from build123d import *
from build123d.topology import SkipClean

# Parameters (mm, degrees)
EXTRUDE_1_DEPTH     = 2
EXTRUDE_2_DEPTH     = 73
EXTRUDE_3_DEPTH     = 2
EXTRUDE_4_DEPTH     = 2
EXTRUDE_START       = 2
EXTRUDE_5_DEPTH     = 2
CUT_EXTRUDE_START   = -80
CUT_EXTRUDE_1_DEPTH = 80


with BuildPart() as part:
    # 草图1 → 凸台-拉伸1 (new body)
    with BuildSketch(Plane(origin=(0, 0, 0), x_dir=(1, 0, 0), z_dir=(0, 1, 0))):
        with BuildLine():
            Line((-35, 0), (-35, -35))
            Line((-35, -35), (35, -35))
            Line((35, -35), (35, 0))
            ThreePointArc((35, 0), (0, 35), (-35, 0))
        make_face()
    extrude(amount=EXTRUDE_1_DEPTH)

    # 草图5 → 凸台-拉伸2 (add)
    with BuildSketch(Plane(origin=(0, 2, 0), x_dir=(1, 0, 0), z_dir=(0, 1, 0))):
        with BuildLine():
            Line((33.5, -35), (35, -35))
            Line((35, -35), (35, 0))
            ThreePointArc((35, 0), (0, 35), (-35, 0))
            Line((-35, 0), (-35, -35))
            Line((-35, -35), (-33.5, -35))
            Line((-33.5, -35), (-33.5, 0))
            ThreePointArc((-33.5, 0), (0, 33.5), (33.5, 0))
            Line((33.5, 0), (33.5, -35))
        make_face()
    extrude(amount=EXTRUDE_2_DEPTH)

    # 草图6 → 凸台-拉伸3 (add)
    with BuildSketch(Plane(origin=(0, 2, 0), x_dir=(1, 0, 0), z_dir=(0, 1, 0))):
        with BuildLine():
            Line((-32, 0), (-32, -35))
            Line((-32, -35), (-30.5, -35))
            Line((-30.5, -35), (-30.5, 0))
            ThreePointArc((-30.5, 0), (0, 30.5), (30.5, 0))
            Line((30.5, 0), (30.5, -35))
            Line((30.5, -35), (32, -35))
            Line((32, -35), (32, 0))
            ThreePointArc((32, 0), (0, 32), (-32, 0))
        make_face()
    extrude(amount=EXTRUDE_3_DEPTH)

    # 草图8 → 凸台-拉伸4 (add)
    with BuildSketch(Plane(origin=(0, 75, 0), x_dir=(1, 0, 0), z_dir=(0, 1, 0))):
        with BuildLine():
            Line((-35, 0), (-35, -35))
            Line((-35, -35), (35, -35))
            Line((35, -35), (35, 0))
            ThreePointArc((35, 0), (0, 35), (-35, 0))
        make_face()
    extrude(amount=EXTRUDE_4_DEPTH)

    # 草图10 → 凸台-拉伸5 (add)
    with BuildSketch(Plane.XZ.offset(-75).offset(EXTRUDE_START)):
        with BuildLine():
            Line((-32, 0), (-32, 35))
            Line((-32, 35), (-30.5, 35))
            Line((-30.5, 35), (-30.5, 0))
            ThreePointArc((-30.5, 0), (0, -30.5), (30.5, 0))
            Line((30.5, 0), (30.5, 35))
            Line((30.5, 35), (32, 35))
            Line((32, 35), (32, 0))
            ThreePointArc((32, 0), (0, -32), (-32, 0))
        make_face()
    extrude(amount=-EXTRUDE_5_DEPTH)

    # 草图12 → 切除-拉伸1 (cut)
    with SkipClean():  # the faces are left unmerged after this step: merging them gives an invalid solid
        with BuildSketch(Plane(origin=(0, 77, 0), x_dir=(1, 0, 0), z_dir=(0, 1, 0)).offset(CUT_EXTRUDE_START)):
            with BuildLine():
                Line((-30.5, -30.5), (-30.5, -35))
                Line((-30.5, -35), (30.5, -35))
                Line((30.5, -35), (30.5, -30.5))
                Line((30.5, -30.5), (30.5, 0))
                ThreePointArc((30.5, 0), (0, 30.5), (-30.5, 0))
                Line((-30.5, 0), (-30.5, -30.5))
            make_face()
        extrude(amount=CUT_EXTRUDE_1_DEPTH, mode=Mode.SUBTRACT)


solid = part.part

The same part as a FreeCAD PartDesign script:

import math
import FreeCAD as App
import Part
import Sketcher

V = App.Vector

doc = App.newDocument("Part")
params = doc.addObject("Spreadsheet::Sheet", "Params")
for row, (alias, value) in enumerate([
    ("sketch1_radius", "35 mm"),
    ("sketch1_height", "35 mm"),
    ("pad1_length", "2 mm"),
    ("sketch2_radius", "35 mm"),
    ("sketch2_radius2", "33.5 mm"),
    ("sketch2_height", "35 mm"),
    ("pad2_length", "73 mm"),
    ("sketch3_radius", "32 mm"),
    ("sketch3_radius2", "30.5 mm"),
    ("sketch3_height", "35 mm"),
    ("pad3_length", "2 mm"),
    ("sketch4_radius", "35 mm"),
    ("sketch4_height", "35 mm"),
    ("pad4_length", "2 mm"),
    ("sketch5_radius", "32 mm"),
    ("sketch5_radius2", "30.5 mm"),
    ("sketch5_height", "35 mm"),
    ("pad5_length", "2 mm"),
    ("sketch6_radius", "30.5 mm"),
    ("sketch6_height", "35 mm"),
    ("pocket1_length", "80 mm"),
], start=1):
    params.set(f"A{row}", alias)
    params.set(f"B{row}", "=" + value)
    params.setAlias(f"B{row}", alias)

body = doc.addObject("PartDesign::Body", "Body")

# Sketch on XZ plane
sketch1 = doc.addObject("Sketcher::SketchObject", "Sketch")
body.addObject(sketch1)
sketch1.AttachmentSupport = (doc.XZ_Plane, [""])
sketch1.MapMode = "FlatFace"
sketch1.addGeometry([
    Part.LineSegment(V(-35, 0, 0), V(-35, 35, 0)),
    Part.LineSegment(V(-35, 35, 0), V(35, 35, 0)),
    Part.LineSegment(V(35, 35, 0), V(35, 0, 0)),
    Part.ArcOfCircle(Part.Circle(V(0, 0, 0), V(0, 0, 1), 35), math.radians(180), math.radians(360)),
], False)
sketch1.addConstraint([
    Sketcher.Constraint("Coincident", 0, 2, 1, 1),
    Sketcher.Constraint("Coincident", 1, 2, 2, 1),
    Sketcher.Constraint("Tangent", 2, 2, 3, 2),
    Sketcher.Constraint("Tangent", 3, 1, 0, 1),
    Sketcher.Constraint("Vertical", 0),
    Sketcher.Constraint("Horizontal", 1),
    Sketcher.Constraint("Vertical", 2),
    Sketcher.Constraint("Coincident", 3, 3, -1, 1),
    Sketcher.Constraint("Radius", 3, 35.0),
    Sketcher.Constraint("DistanceY", 0, 1, 0, 2, 35.0),
])
sketch1.setExpression("Constraints[8]", "Params.sketch1_radius")
sketch1.setExpression("Constraints[9]", "Params.sketch1_height")
pad1 = doc.addObject("PartDesign::Pad", "Pad")
body.addObject(pad1)
pad1.Profile = sketch1
pad1.setExpression("Length", "Params.pad1_length")
pad1.Reversed = True

# Sketch on XZ plane
sketch2 = doc.addObject("Sketcher::SketchObject", "Sketch001")
body.addObject(sketch2)
sketch2.AttachmentSupport = (doc.XZ_Plane, [""])
sketch2.MapMode = "FlatFace"
sketch2.AttachmentOffset = App.Placement(V(0, 0, -2), App.Rotation())
sketch2.addGeometry([
    Part.LineSegment(V(33.5, 35, 0), V(35, 35, 0)),  # 0
    Part.LineSegment(V(35, 35, 0), V(35, 0, 0)),  # 1
    Part.ArcOfCircle(Part.Circle(V(0, 0, 0), V(0, 0, 1), 35), math.radians(180), math.radians(360)),  # 2
    Part.LineSegment(V(-35, 0, 0), V(-35, 35, 0)),  # 3
    Part.LineSegment(V(-35, 35, 0), V(-33.5, 35, 0)),  # 4
    Part.LineSegment(V(-33.5, 35, 0), V(-33.5, 0, 0)),  # 5
    Part.ArcOfCircle(Part.Circle(V(0, 0, 0), V(0, 0, 1), 33.5), math.radians(180), math.radians(360)),  # 6
    Part.LineSegment(V(33.5, 0, 0), V(33.5, 35, 0)),  # 7
], False)
sketch2.addConstraint([
    Sketcher.Constraint("Coincident", 0, 2, 1, 1),
    Sketcher.Constraint("Tangent", 1, 2, 2, 2),
    Sketcher.Constraint("Tangent", 2, 1, 3, 1),
    Sketcher.Constraint("Coincident", 3, 2, 4, 1),
    Sketcher.Constraint("Coincident", 4, 2, 5, 1),
    Sketcher.Constraint("Tangent", 5, 2, 6, 1),
    Sketcher.Constraint("Tangent", 6, 2, 7, 1),
    Sketcher.Constraint("Coincident", 7, 2, 0, 1),
    Sketcher.Constraint("Horizontal", 0),
    Sketcher.Constraint("Vertical", 1),
    Sketcher.Constraint("Vertical", 3),
    Sketcher.Constraint("Horizontal", 4),
    Sketcher.Constraint("Vertical", 5),
    Sketcher.Constraint("Vertical", 7),
    Sketcher.Constraint("Coincident", 2, 3, -1, 1),
    Sketcher.Constraint("Coincident", 6, 3, -1, 1),
    Sketcher.Constraint("Horizontal", 0, 2, 3, 2),
    Sketcher.Constraint("Radius", 2, 35.0),
    Sketcher.Constraint("Radius", 6, 33.5),
    Sketcher.Constraint("DistanceY", 1, 2, 1, 1, 35.0),
])
sketch2.setExpression("Constraints[17]", "Params.sketch2_radius")
sketch2.setExpression("Constraints[18]", "Params.sketch2_radius2")
sketch2.setExpression("Constraints[19]", "Params.sketch2_height")
pad2 = doc.addObject("PartDesign::Pad", "Pad001")
body.addObject(pad2)
pad2.Profile = sketch2
pad2.setExpression("Length", "Params.pad2_length")
pad2.Reversed = True

# Sketch on XZ plane
sketch3 = doc.addObject("Sketcher::SketchObject", "Sketch002")
body.addObject(sketch3)
sketch3.AttachmentSupport = (doc.XZ_Plane, [""])
sketch3.MapMode = "FlatFace"
sketch3.AttachmentOffset = App.Placement(V(0, 0, -2), App.Rotation())
sketch3.addGeometry([
    Part.LineSegment(V(-32, 0, 0), V(-32, 35, 0)),  # 0
    Part.LineSegment(V(-32, 35, 0), V(-30.5, 35, 0)),  # 1
    Part.LineSegment(V(-30.5, 35, 0), V(-30.5, 0, 0)),  # 2
    Part.ArcOfCircle(Part.Circle(V(0, 0, 0), V(0, 0, 1), 30.5), math.radians(180), math.radians(360)),  # 3
    Part.LineSegment(V(30.5, 0, 0), V(30.5, 35, 0)),  # 4
    Part.LineSegment(V(30.5, 35, 0), V(32, 35, 0)),  # 5
    Part.LineSegment(V(32, 35, 0), V(32, 0, 0)),  # 6
    Part.ArcOfCircle(Part.Circle(V(0, 0, 0), V(0, 0, 1), 32), math.radians(180), math.radians(360)),  # 7
], False)
sketch3.addConstraint([
    Sketcher.Constraint("Coincident", 0, 2, 1, 1),
    Sketcher.Constraint("Coincident", 1, 2, 2, 1),
    Sketcher.Constraint("Tangent", 2, 2, 3, 1),
    Sketcher.Constraint("Tangent", 3, 2, 4, 1),
    Sketcher.Constraint("Coincident", 4, 2, 5, 1),
    Sketcher.Constraint("Coincident", 5, 2, 6, 1),
    Sketcher.Constraint("Tangent", 6, 2, 7, 2),
    Sketcher.Constraint("Tangent", 7, 1, 0, 1),
    Sketcher.Constraint("Vertical", 0),
    Sketcher.Constraint("Horizontal", 1),
    Sketcher.Constraint("Vertical", 2),
    Sketcher.Constraint("Vertical", 4),
    Sketcher.Constraint("Horizontal", 5),
    Sketcher.Constraint("Vertical", 6),
    Sketcher.Constraint("Coincident", 3, 3, -1, 1),
    Sketcher.Constraint("Coincident", 7, 3, -1, 1),
    Sketcher.Constraint("Horizontal", 1, 2, 4, 2),
    Sketcher.Constraint("Radius", 7, 32.0),
    Sketcher.Constraint("Radius", 3, 30.5),
    Sketcher.Constraint("DistanceY", 0, 1, 0, 2, 35.0),
])
sketch3.setExpression("Constraints[17]", "Params.sketch3_radius")
sketch3.setExpression("Constraints[18]", "Params.sketch3_radius2")
sketch3.setExpression("Constraints[19]", "Params.sketch3_height")
pad3 = doc.addObject("PartDesign::Pad", "Pad002")
body.addObject(pad3)
pad3.Profile = sketch3
pad3.setExpression("Length", "Params.pad3_length")
pad3.Reversed = True

# Sketch on XZ plane
sketch4 = doc.addObject("Sketcher::SketchObject", "Sketch003")
body.addObject(sketch4)
sketch4.AttachmentSupport = (doc.XZ_Plane, [""])
sketch4.MapMode = "FlatFace"
sketch4.AttachmentOffset = App.Placement(V(0, 0, -75), App.Rotation())
sketch4.addGeometry([
    Part.LineSegment(V(-35, 0, 0), V(-35, 35, 0)),
    Part.LineSegment(V(-35, 35, 0), V(35, 35, 0)),
    Part.LineSegment(V(35, 35, 0), V(35, 0, 0)),
    Part.ArcOfCircle(Part.Circle(V(0, 0, 0), V(0, 0, 1), 35), math.radians(180), math.radians(360)),
], False)
sketch4.addConstraint([
    Sketcher.Constraint("Coincident", 0, 2, 1, 1),
    Sketcher.Constraint("Coincident", 1, 2, 2, 1),
    Sketcher.Constraint("Tangent", 2, 2, 3, 2),
    Sketcher.Constraint("Tangent", 3, 1, 0, 1),
    Sketcher.Constraint("Vertical", 0),
    Sketcher.Constraint("Horizontal", 1),
    Sketcher.Constraint("Vertical", 2),
    Sketcher.Constraint("Coincident", 3, 3, -1, 1),
    Sketcher.Constraint("Radius", 3, 35.0),
    Sketcher.Constraint("DistanceY", 0, 1, 0, 2, 35.0),
])
sketch4.setExpression("Constraints[8]", "Params.sketch4_radius")
sketch4.setExpression("Constraints[9]", "Params.sketch4_height")
pad4 = doc.addObject("PartDesign::Pad", "Pad003")
body.addObject(pad4)
pad4.Profile = sketch4
pad4.setExpression("Length", "Params.pad4_length")
pad4.Reversed = True

# Sketch on XZ plane
sketch5 = doc.addObject("Sketcher::SketchObject", "Sketch004")
body.addObject(sketch5)
sketch5.AttachmentSupport = (doc.XZ_Plane, [""])
sketch5.MapMode = "FlatFace"
sketch5.AttachmentOffset = App.Placement(V(0, 0, -73), App.Rotation())
sketch5.addGeometry([
    Part.LineSegment(V(-32, 35, 0), V(-32, 0, 0)),  # 0
    Part.ArcOfCircle(Part.Circle(V(0, 0, 0), V(0, 0, 1), 32), math.radians(180), math.radians(360)),  # 1
    Part.LineSegment(V(32, 0, 0), V(32, 35, 0)),  # 2
    Part.LineSegment(V(32, 35, 0), V(30.5, 35, 0)),  # 3
    Part.LineSegment(V(30.5, 35, 0), V(30.5, 0, 0)),  # 4
    Part.ArcOfCircle(Part.Circle(V(0, 0, 0), V(0, 0, 1), 30.5), math.radians(180), math.radians(360)),  # 5
    Part.LineSegment(V(-30.5, 0, 0), V(-30.5, 35, 0)),  # 6
    Part.LineSegment(V(-30.5, 35, 0), V(-32, 35, 0)),  # 7
], False)
sketch5.addConstraint([
    Sketcher.Constraint("Tangent", 0, 2, 1, 1),
    Sketcher.Constraint("Tangent", 1, 2, 2, 1),
    Sketcher.Constraint("Coincident", 2, 2, 3, 1),
    Sketcher.Constraint("Coincident", 3, 2, 4, 1),
    Sketcher.Constraint("Tangent", 4, 2, 5, 2),
    Sketcher.Constraint("Tangent", 5, 1, 6, 1),
    Sketcher.Constraint("Coincident", 6, 2, 7, 1),
    Sketcher.Constraint("Coincident", 7, 2, 0, 1),
    Sketcher.Constraint("Vertical", 0),
    Sketcher.Constraint("Vertical", 2),
    Sketcher.Constraint("Horizontal", 3),
    Sketcher.Constraint("Vertical", 4),
    Sketcher.Constraint("Vertical", 6),
    Sketcher.Constraint("Horizontal", 7),
    Sketcher.Constraint("Coincident", 1, 3, -1, 1),
    Sketcher.Constraint("Coincident", 5, 3, -1, 1),
    Sketcher.Constraint("Horizontal", 3, 2, 6, 2),
    Sketcher.Constraint("Radius", 1, 32.0),
    Sketcher.Constraint("Radius", 5, 30.5),
    Sketcher.Constraint("DistanceY", 0, 2, 0, 1, 35.0),
])
sketch5.setExpression("Constraints[17]", "Params.sketch5_radius")
sketch5.setExpression("Constraints[18]", "Params.sketch5_radius2")
sketch5.setExpression("Constraints[19]", "Params.sketch5_height")
pad5 = doc.addObject("PartDesign::Pad", "Pad004")
body.addObject(pad5)
pad5.Profile = sketch5
pad5.setExpression("Length", "Params.pad5_length")
pad5.Reversed = True

# Sketch on XZ plane
sketch6 = doc.addObject("Sketcher::SketchObject", "Sketch005")
body.addObject(sketch6)
sketch6.AttachmentSupport = (doc.XZ_Plane, [""])
sketch6.MapMode = "FlatFace"
sketch6.AttachmentOffset = App.Placement(V(0, 0, 3), App.Rotation())
sketch6.addGeometry([
    Part.LineSegment(V(-30, 35, 0), V(30, 35, 0)),
    Part.LineSegment(V(30, 35, 0), V(30, 0, 0)),
    Part.ArcOfCircle(Part.Circle(V(0, 0, 0), V(0, 0, 1), 30), math.radians(180), math.radians(360)),
    Part.LineSegment(V(-30, 0, 0), V(-30, 35, 0)),
], False)
sketch6.addConstraint([
    Sketcher.Constraint("Coincident", 0, 2, 1, 1),
    Sketcher.Constraint("Tangent", 1, 2, 2, 2),
    Sketcher.Constraint("Tangent", 2, 1, 3, 1),
    Sketcher.Constraint("Coincident", 3, 2, 0, 1),
    Sketcher.Constraint("Horizontal", 0),
    Sketcher.Constraint("Vertical", 1),
    Sketcher.Constraint("Vertical", 3),
    Sketcher.Constraint("Coincident", 2, 3, -1, 1),
    Sketcher.Constraint("Radius", 2, 30.5),
    Sketcher.Constraint("DistanceY", 1, 2, 1, 1, 35.0),
])
sketch6.setExpression("Constraints[8]", "Params.sketch6_radius")
sketch6.setExpression("Constraints[9]", "Params.sketch6_height")
pocket1 = doc.addObject("PartDesign::Pocket", "Pocket")
body.addObject(pocket1)
pocket1.Profile = sketch6
pocket1.setExpression("Length", "Params.pocket1_length")

doc.recompute()
